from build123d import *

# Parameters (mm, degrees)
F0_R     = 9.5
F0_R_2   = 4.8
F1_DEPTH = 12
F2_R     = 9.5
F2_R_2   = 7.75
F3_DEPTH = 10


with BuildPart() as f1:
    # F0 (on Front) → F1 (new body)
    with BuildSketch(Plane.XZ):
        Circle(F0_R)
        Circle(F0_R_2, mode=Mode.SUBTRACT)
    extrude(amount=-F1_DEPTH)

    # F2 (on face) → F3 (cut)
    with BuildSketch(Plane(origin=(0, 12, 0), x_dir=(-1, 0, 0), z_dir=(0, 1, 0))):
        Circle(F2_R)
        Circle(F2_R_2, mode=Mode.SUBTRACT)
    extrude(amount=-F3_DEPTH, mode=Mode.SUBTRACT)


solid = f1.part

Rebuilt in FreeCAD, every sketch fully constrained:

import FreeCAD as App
import Part
import Sketcher
Q = App.Units.Quantity

doc = App.newDocument("Part")
params = doc.addObject("Spreadsheet::Sheet", "Params")
for row, (alias, value) in enumerate([
    ("sketch1_diameter", "19 mm"),
    ("sketch1_diameter2", "9.6 mm"),
    ("pad1_length", "12 mm"),
    ("sketch2_diameter", "19 mm"),
    ("sketch2_diameter2", "15.5 mm"),
    ("pocket1_length", "10 mm"),
], start=1):
    params.set(f"A{row}", alias)
    params.set(f"B{row}", "=" + value)
    params.setAlias(f"B{row}", alias)

body = doc.addObject("PartDesign::Body", "Body")

sketch1 = body.newObject("Sketcher::SketchObject", "Sketch")
sketch1.AttachmentSupport = (doc.getObject("XZ_Plane"), [""])
sketch1.MapMode = "FlatFace"
sketch1.addGeometry([
    Part.Circle(App.Vector(0, 0, 0), App.Vector(0, 0, 1), 9.5),
    Part.Circle(App.Vector(0, 0, 0), App.Vector(0, 0, 1), 4.8),
], False)
sketch1.addConstraint([
    Sketcher.Constraint("Coincident", 0, 3, -1, 1),
    Sketcher.Constraint("Coincident", 1, 3, -1, 1),
    Sketcher.Constraint("Diameter", 0, Q("19 mm")),
    Sketcher.Constraint("Diameter", 1, Q("9.6 mm")),
])
sketch1.setExpression("Constraints[2]", "Params.sketch1_diameter")
sketch1.setExpression("Constraints[3]", "Params.sketch1_diameter2")
pad1 = body.newObject("PartDesign::Pad", "Pad")
pad1.Profile = sketch1
pad1.setExpression("Length", "Params.pad1_length")
pad1.Reversed = True

sketch2 = body.newObject("Sketcher::SketchObject", "Sketch001")
sketch2.AttachmentSupport = (doc.getObject("XZ_Plane"), [""])
sketch2.MapMode = "FlatFace"
sketch2.AttachmentOffset = App.Placement(App.Vector(0, 0, -12), App.Rotation())
sketch2.addGeometry([
    Part.Circle(App.Vector(0, 0, 0), App.Vector(0, 0, 1), 10),
    Part.Circle(App.Vector(0, 0, 0), App.Vector(0, 0, 1), 8),
], False)
sketch2.addConstraint([
    Sketcher.Constraint("Coincident", 0, 3, -1, 1),
    Sketcher.Constraint("Coincident", 1, 3, -1, 1),
    Sketcher.Constraint("Diameter", 0, Q("19 mm")),
    Sketcher.Constraint("Diameter", 1, Q("15.5 mm")),
])
sketch2.setExpression("Constraints[2]", "Params.sketch2_diameter")
sketch2.setExpression("Constraints[3]", "Params.sketch2_diameter2")
pocket1 = body.newObject("PartDesign::Pocket", "Pocket")
pocket1.Profile = sketch2
pocket1.setExpression("Length", "Params.pocket1_length")
pocket1.Reversed = True

doc.recompute()
